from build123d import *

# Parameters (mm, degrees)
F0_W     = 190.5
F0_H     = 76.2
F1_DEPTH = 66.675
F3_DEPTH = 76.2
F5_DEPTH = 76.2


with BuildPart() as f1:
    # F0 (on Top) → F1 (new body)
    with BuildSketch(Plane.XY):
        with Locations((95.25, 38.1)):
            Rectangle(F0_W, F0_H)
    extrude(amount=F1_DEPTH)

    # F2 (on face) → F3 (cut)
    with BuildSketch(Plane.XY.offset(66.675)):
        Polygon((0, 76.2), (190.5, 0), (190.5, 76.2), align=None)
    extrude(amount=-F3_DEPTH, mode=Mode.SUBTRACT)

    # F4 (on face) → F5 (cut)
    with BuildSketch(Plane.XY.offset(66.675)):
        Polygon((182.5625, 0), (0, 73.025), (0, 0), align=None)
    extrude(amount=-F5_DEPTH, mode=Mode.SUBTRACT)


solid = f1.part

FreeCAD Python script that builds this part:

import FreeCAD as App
import Part
import Sketcher

V = App.Vector
Q = App.Units.Quantity


def add_polygon(sketch, points):
    """Adds a closed chain of lines whose ends are joined by coincident constraints."""
    first, n = sketch.GeometryCount, len(points)
    for a, b in zip(points, points[1:] + points[:1]):
        sketch.addGeometry(Part.LineSegment(App.Vector(*a, 0), App.Vector(*b, 0)), False)
    for i in range(n):
        sketch.addConstraint(Sketcher.Constraint("Coincident", first + i, 2, first + (i + 1) % n, 1))

doc = App.newDocument("Part")
params = doc.addObject("Spreadsheet::Sheet", "Params")
for row, (alias, value) in enumerate([
    ("sketch1_height", "3 in"),
    ("sketch1_width", "7.5 in"),
    ("pad1_length", "2.625 in"),
    ("sketch2_height", "3 in"),
    ("sketch2_width", "7.5 in"),
    ("pocket1_length", "3 in"),
    ("sketch3_width", "7.1875 in"),
    ("sketch3_height", "2.875 in"),
    ("pocket2_length", "3 in"),
], start=1):
    params.set(f"A{row}", alias)
    params.set(f"B{row}", "=" + value)
    params.setAlias(f"B{row}", alias)

body = doc.addObject("PartDesign::Body", "Body")

# Sketch on XY plane
sketch1 = body.newObject("Sketcher::SketchObject", "Sketch")
sketch1.AttachmentSupport = (doc.getObject("XY_Plane"), [""])
sketch1.MapMode = "FlatFace"
add_polygon(sketch1, [(0, 76), (0, 0), (190, 0), (190, 76)])  # lines 0-3
sketch1.addConstraint(Sketcher.Constraint("Vertical", 0))
sketch1.addConstraint(Sketcher.Constraint("Horizontal", 1))
sketch1.addConstraint(Sketcher.Constraint("Vertical", 2))
sketch1.addConstraint(Sketcher.Constraint("Horizontal", 3))
sketch1.addConstraint(Sketcher.Constraint("Coincident", 0, 2, -1, 1))
sketch1.addConstraint(Sketcher.Constraint("DistanceY", 0, 2, 0, 1, Q("3 in")))
sketch1.addConstraint(Sketcher.Constraint("DistanceX", 1, 1, 1, 2, Q("7.5 in")))
sketch1.setExpression("Constraints[9]", "Params.sketch1_height")
sketch1.setExpression("Constraints[10]", "Params.sketch1_width")
pad1 = body.newObject("PartDesign::Pad", "Pad")
pad1.Profile = sketch1
pad1.setExpression("Length", "Params.pad1_length")

# Sketch on XY plane
sketch2 = body.newObject("Sketcher::SketchObject", "Sketch001")
sketch2.AttachmentSupport = (doc.getObject("XY_Plane"), [""])
sketch2.MapMode = "FlatFace"
sketch2.AttachmentOffset = App.Placement(V(0, 0, 2.625 * 25.4), App.Rotation())
add_polygon(sketch2, [(0, 76), (190, 0), (190, 76)])  # lines 0-2
sketch2.addConstraint(Sketcher.Constraint("Vertical", 1))
sketch2.addConstraint(Sketcher.Constraint("Horizontal", 2))
sketch2.addConstraint(Sketcher.Constraint("PointOnObject", 0, 2, -1))
sketch2.addConstraint(Sketcher.Constraint("PointOnObject", 2, 2, -2))
sketch2.addConstraint(Sketcher.Constraint("DistanceY", 1, 1, 1, 2, Q("3 in")))
sketch2.addConstraint(Sketcher.Constraint("DistanceX", 2, 2, 2, 1, Q("7.5 in")))
sketch2.setExpression("Constraints[7]", "Params.sketch2_height")
sketch2.setExpression("Constraints[8]", "Params.sketch2_width")
pocket1 = body.newObject("PartDesign::Pocket", "Pocket")
pocket1.Profile = sketch2
pocket1.setExpression("Length", "Params.pocket1_length")

# Sketch on XY plane
sketch3 = body.newObject("Sketcher::SketchObject", "Sketch002")
sketch3.AttachmentSupport = (doc.getObject("XY_Plane"), [""])
sketch3.MapMode = "FlatFace"
sketch3.AttachmentOffset = App.Placement(V(0, 0, 2.625 * 25.4), App.Rotation())
add_polygon(sketch3, [(183, 0), (0, 73), (0, 0)])  # lines 0-2
sketch3.addConstraint(Sketcher.Constraint("Vertical", 1))
sketch3.addConstraint(Sketcher.Constraint("Horizontal", 2))
sketch3.addConstraint(Sketcher.Constraint("Coincident", 1, 2, -1, 1))
sketch3.addConstraint(Sketcher.Constraint("DistanceX", 2, 1, 2, 2, Q("7.1875 in")))
sketch3.addConstraint(Sketcher.Constraint("DistanceY", 1, 2, 1, 1, Q("2.875 in")))
sketch3.setExpression("Constraints[6]", "Params.sketch3_width")
sketch3.setExpression("Constraints[7]", "Params.sketch3_height")
pocket2 = body.newObject("PartDesign::Pocket", "Pocket001")
pocket2.Profile = sketch3
pocket2.setExpression("Length", "Params.pocket2_length")

doc.recompute()
